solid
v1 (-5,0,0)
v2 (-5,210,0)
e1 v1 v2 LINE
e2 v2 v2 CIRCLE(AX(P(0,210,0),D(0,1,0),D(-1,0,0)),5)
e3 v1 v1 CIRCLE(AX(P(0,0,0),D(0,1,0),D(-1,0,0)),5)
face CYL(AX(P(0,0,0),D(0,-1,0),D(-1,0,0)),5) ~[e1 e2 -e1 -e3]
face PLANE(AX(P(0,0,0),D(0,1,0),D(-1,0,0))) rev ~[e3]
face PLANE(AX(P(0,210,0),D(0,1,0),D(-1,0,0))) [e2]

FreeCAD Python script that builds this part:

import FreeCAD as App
import Part
import Sketcher
from FreeCAD import Vector

doc = App.newDocument("Part")
body = doc.addObject("PartDesign::Body", "Body")

# Sketch on XZ plane
sketch1 = body.newObject("Sketcher::SketchObject", "Sketch")
sketch1.AttachmentSupport = (doc.getObject("XZ_Plane"), [""])
sketch1.MapMode = "FlatFace"
sketch1.addGeometry(Part.Circle(Vector(0, 0, 0), Vector(0, 0, 1), 5), False)
sketch1.addConstraint([
    Sketcher.Constraint("Coincident", 0, 3, -1, 1),
    Sketcher.Constraint("Diameter", 0, 10.0),
])
pad1 = body.newObject("PartDesign::Pad", "Pad")
pad1.Profile = sketch1
pad1.Length = 210
pad1.Reversed = True

doc.recompute()
